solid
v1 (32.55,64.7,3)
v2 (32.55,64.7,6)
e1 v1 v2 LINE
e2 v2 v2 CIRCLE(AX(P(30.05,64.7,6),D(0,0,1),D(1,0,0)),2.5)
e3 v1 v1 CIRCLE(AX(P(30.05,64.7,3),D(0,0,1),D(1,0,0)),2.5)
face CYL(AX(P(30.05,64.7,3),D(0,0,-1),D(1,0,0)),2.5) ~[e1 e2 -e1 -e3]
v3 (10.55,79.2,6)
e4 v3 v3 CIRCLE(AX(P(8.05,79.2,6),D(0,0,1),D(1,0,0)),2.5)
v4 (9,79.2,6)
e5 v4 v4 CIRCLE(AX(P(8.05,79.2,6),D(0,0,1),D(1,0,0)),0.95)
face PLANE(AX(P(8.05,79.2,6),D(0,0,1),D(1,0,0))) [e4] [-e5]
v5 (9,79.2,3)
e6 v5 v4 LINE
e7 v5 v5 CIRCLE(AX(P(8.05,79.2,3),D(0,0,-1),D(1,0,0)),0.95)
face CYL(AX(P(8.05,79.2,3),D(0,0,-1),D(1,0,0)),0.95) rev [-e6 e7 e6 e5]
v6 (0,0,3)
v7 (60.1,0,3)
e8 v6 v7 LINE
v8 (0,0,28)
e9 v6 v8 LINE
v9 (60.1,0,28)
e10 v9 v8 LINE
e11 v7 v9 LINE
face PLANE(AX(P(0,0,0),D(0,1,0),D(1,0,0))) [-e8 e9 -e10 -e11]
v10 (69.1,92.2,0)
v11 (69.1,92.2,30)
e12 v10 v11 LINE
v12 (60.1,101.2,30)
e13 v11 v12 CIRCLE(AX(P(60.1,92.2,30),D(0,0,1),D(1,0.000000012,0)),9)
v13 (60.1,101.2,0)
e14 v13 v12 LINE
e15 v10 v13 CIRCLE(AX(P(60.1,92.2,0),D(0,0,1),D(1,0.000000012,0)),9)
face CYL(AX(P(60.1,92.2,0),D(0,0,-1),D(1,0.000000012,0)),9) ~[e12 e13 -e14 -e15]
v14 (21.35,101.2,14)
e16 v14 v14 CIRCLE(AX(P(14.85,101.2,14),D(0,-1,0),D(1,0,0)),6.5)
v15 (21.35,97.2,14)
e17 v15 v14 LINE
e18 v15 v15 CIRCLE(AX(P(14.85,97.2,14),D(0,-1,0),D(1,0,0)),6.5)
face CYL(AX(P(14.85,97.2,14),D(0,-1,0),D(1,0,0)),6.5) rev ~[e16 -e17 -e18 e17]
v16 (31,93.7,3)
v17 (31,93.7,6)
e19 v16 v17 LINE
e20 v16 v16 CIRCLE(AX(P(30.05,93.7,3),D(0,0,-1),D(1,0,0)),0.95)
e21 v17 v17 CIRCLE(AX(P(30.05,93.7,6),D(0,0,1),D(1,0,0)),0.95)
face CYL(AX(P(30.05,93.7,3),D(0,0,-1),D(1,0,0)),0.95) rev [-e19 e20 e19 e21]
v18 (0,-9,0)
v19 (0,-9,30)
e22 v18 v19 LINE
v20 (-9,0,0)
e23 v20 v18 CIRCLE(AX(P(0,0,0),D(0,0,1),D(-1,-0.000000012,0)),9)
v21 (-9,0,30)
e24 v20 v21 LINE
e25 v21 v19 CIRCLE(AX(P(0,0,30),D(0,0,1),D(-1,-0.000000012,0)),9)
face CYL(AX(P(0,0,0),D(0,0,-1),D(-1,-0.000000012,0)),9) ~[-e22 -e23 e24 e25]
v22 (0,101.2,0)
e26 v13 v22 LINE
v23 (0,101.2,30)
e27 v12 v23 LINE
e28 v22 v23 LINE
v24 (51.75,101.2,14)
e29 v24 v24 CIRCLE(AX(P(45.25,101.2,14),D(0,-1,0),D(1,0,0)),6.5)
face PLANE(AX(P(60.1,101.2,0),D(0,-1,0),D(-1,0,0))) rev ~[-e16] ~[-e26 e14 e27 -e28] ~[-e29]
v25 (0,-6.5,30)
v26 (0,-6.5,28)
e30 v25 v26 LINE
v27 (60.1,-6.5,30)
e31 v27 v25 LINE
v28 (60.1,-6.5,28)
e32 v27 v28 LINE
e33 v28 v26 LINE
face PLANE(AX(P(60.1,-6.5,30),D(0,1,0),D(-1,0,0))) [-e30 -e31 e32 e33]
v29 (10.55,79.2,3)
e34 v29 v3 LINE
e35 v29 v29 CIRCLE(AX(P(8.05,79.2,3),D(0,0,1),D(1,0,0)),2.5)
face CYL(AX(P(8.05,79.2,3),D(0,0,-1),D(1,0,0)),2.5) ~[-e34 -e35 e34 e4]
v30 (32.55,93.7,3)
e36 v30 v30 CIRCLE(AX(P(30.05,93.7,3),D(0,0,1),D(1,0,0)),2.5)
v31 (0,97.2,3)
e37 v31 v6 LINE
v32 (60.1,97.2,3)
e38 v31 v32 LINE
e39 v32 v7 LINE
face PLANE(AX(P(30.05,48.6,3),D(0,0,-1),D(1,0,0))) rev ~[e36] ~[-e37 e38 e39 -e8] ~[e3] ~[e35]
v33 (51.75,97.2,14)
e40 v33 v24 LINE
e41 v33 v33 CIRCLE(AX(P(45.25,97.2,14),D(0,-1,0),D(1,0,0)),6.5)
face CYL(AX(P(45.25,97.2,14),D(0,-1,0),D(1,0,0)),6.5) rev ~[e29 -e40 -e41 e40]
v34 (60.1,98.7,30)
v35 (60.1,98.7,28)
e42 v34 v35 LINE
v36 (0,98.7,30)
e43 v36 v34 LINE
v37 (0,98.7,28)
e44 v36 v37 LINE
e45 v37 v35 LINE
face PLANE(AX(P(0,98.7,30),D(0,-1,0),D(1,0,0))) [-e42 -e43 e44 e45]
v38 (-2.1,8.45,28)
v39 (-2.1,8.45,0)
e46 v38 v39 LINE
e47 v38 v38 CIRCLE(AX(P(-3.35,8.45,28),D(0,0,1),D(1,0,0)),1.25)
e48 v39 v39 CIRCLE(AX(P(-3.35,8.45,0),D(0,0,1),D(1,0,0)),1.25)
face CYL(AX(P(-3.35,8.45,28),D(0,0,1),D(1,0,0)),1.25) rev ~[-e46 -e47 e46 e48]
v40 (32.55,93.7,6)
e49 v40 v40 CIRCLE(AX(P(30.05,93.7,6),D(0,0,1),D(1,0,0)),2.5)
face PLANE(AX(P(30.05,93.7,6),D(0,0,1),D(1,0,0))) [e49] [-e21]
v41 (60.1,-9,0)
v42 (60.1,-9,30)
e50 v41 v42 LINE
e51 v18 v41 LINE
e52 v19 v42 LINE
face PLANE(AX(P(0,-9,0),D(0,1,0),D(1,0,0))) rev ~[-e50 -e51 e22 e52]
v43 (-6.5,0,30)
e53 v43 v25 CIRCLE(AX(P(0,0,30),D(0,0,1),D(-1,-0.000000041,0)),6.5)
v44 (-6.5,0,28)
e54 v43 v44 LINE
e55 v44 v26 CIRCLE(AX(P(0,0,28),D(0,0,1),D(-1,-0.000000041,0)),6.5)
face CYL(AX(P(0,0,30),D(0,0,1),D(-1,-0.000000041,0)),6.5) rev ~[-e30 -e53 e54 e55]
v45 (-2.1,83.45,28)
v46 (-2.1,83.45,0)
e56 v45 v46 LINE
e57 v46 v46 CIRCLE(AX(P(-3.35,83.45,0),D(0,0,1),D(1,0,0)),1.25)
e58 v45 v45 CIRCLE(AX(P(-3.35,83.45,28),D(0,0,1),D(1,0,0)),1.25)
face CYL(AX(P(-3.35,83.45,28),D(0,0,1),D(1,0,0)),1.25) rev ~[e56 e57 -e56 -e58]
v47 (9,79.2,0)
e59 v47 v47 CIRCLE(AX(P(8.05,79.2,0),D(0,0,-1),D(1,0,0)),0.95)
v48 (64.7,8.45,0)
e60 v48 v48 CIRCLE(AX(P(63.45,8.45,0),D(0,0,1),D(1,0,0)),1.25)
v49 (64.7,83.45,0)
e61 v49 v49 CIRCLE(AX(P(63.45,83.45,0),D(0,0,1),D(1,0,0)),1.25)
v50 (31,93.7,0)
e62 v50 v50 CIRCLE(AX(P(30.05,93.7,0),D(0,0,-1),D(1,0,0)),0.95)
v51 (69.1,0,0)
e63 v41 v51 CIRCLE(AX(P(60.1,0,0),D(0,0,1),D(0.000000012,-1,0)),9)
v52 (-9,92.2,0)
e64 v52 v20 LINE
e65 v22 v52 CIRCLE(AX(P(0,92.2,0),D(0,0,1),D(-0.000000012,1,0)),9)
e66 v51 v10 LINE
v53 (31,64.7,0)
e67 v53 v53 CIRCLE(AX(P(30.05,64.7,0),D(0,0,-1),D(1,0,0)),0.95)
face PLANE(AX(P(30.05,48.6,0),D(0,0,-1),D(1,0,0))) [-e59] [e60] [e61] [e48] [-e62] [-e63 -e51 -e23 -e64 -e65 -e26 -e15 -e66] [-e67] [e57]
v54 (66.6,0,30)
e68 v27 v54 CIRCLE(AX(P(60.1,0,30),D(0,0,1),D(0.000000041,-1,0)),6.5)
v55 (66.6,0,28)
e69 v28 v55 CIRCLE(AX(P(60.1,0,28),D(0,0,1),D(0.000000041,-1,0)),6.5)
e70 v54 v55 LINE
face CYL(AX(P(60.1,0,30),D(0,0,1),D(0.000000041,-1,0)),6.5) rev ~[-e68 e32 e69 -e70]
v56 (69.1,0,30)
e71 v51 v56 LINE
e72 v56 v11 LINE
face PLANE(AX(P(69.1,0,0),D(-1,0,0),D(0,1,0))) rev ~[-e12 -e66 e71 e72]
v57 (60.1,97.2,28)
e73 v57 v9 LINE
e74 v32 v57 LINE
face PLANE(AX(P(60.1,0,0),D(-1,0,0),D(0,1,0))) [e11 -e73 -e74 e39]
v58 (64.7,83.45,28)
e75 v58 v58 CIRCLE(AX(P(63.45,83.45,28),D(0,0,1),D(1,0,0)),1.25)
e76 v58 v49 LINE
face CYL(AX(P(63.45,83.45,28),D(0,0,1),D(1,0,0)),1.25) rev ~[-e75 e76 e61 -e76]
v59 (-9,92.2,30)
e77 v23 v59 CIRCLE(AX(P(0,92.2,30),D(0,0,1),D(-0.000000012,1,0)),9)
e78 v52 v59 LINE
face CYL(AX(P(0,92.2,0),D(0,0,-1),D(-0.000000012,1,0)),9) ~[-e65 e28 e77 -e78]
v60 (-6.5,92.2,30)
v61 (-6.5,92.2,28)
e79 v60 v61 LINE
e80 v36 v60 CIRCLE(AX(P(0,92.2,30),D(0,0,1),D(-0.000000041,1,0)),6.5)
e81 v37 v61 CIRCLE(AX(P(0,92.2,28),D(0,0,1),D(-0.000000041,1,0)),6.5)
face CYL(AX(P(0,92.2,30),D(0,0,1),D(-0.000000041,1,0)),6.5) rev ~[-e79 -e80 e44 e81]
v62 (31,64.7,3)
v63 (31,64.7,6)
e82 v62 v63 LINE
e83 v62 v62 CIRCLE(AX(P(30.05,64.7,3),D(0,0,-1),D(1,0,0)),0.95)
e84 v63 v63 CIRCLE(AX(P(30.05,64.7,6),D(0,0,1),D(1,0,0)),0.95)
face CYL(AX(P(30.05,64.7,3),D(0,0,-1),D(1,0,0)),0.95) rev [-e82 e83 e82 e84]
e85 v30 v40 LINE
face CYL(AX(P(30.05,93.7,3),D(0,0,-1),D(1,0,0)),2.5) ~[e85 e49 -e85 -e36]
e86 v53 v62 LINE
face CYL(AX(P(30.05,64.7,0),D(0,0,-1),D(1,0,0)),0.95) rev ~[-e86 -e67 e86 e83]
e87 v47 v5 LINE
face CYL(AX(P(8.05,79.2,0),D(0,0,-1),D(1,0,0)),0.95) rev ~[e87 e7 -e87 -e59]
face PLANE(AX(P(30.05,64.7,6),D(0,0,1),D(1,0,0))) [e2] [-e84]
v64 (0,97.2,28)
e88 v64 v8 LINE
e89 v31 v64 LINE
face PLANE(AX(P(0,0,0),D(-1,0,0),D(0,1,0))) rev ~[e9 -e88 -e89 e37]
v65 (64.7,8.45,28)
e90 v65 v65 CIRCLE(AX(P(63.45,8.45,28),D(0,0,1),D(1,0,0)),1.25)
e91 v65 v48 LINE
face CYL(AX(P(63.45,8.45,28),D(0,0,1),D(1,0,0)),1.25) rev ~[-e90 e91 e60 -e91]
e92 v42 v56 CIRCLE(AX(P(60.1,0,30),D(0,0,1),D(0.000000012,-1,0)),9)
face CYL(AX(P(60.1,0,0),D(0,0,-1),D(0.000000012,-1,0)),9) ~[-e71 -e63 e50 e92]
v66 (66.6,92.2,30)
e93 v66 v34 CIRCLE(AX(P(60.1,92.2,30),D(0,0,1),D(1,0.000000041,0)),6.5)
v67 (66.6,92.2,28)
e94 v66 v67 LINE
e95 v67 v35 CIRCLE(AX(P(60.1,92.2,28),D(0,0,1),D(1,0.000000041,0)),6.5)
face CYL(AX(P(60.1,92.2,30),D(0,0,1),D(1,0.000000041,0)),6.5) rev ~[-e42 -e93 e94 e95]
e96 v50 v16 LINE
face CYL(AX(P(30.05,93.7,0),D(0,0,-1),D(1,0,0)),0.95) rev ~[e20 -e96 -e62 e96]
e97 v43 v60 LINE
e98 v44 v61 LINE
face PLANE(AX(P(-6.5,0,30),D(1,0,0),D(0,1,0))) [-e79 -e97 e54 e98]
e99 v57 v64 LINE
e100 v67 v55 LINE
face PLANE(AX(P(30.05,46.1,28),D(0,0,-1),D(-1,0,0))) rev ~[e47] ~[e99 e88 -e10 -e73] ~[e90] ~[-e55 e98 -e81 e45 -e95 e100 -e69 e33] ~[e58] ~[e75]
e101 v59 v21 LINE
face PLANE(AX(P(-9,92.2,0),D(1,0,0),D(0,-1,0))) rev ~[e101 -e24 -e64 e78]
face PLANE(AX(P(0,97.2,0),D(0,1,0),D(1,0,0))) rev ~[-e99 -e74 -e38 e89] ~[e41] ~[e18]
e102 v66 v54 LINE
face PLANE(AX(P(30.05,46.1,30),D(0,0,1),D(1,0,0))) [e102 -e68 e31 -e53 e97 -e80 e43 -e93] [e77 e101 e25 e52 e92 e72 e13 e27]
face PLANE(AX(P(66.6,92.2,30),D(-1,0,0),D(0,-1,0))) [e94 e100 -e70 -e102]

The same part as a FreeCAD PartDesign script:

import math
import FreeCAD as App
import Part
import Sketcher
from FreeCAD import Vector
Q = App.Units.Quantity

doc = App.newDocument("Part")
body = doc.addObject("PartDesign::Body", "Body")

# Sketch on XY plane
sketch1 = body.newObject("Sketcher::SketchObject", "Sketch")
sketch1.AttachmentSupport = (doc.getObject("XY_Plane"), [""])
sketch1.MapMode = "FlatFace"
sketch1.addGeometry([
    Part.LineSegment(Vector(0, -9, 0), Vector(60.1, -9, 0)),  # 0
    Part.ArcOfCircle(Part.Circle(Vector(60.1, 0, 0), Vector(0, 0, 1), 9), math.radians(-89.999999), math.radians(-0.000001)),  # 1
    Part.LineSegment(Vector(69.1, 0, 0), Vector(69.1, 92.2, 0)),  # 2
    Part.ArcOfCircle(Part.Circle(Vector(60.1, 92.2, 0), Vector(0, 0, 1), 9), math.radians(0.000001), math.radians(89.999999)),  # 3
    Part.LineSegment(Vector(60.1, 101.2, 0), Vector(0, 101.2, 0)),  # 4
    Part.ArcOfCircle(Part.Circle(Vector(0, 92.2, 0), Vector(0, 0, 1), 9), math.radians(90.000001), math.radians(179.999999)),  # 5
    Part.LineSegment(Vector(-9, 92.2, 0), Vector(-9, 0, 0)),  # 6
    Part.ArcOfCircle(Part.Circle(Vector(0, 0, 0), Vector(0, 0, 1), 9), math.radians(-179.999999), math.radians(-90.000001)),  # 7
    Part.LineSegment(Vector(60.1, 0, 0), Vector(0, 0, 0)),  # 8
    Part.LineSegment(Vector(0, 0, 0), Vector(0, 97.2, 0)),  # 9
    Part.LineSegment(Vector(0, 97.2, 0), Vector(60.1, 97.2, 0)),  # 10
    Part.LineSegment(Vector(60.1, 97.2, 0), Vector(60.1, 0, 0)),  # 11
], False)
sketch1.addConstraint([
    Sketcher.Constraint("Tangent", 0, 2, 1, 1),
    Sketcher.Constraint("Tangent", 1, 2, 2, 1),
    Sketcher.Constraint("Tangent", 2, 2, 3, 1),
    Sketcher.Constraint("Tangent", 3, 2, 4, 1),
    Sketcher.Constraint("Tangent", 4, 2, 5, 1),
    Sketcher.Constraint("Tangent", 5, 2, 6, 1),
    Sketcher.Constraint("Tangent", 6, 2, 7, 1),
    Sketcher.Constraint("Tangent", 7, 2, 0, 1),
    Sketcher.Constraint("Coincident", 8, 2, 9, 1),
    Sketcher.Constraint("Coincident", 9, 2, 10, 1),
    Sketcher.Constraint("Coincident", 10, 2, 11, 1),
    Sketcher.Constraint("Coincident", 11, 2, 8, 1),
    Sketcher.Constraint("Horizontal", 0),
    Sketcher.Constraint("Vertical", 2),
    Sketcher.Constraint("Horizontal", 4),
    Sketcher.Constraint("Vertical", 6),
    Sketcher.Constraint("Horizontal", 8),
    Sketcher.Constraint("Vertical", 9),
    Sketcher.Constraint("Horizontal", 10),
    Sketcher.Constraint("Vertical", 11),
    Sketcher.Constraint("Coincident", 7, 3, -1, 1),
    Sketcher.Constraint("Coincident", 8, 2, -1, 1),
    Sketcher.Constraint("Coincident", 11, 2, 1, 3),
    Sketcher.Constraint("Equal", 1, 3),
    Sketcher.Constraint("Equal", 3, 5),
    Sketcher.Constraint("Radius", 1, Q("9 mm")),
    Sketcher.Constraint("DistanceX", 0, 1, 0, 2, Q("60.1 mm")),
    Sketcher.Constraint("DistanceY", 2, 1, 2, 2, Q("92.2 mm")),
    Sketcher.Constraint("DistanceY", 9, 1, 9, 2, Q("97.2 mm")),
])
pad1 = body.newObject("PartDesign::Pad", "Pad")
pad1.Profile = sketch1
pad1.Length = 30

# Sketch on XY plane
sketch2 = body.newObject("Sketcher::SketchObject", "Sketch001")
sketch2.AttachmentSupport = (doc.getObject("XY_Plane"), [""])
sketch2.MapMode = "FlatFace"
sketch2.AttachmentOffset = App.Placement(Vector(0, 0, 30), App.Rotation())
sketch2.addGeometry([
    Part.LineSegment(Vector(60.1, 98.7, 0), Vector(0, 98.7, 0)),  # 0
    Part.ArcOfCircle(Part.Circle(Vector(0, 92.2, 0), Vector(0, 0, 1), 6.5), math.radians(90.000002), math.radians(179.999998)),  # 1
    Part.LineSegment(Vector(-6.5, 92.2, 0), Vector(-6.5, 0, 0)),  # 2
    Part.ArcOfCircle(Part.Circle(Vector(0, 0, 0), Vector(0, 0, 1), 6.5), math.radians(-179.999998), math.radians(-90.000002)),  # 3
    Part.LineSegment(Vector(0, -6.5, 0), Vector(60.1, -6.5, 0)),  # 4
    Part.ArcOfCircle(Part.Circle(Vector(60.1, 0, 0), Vector(0, 0, 1), 6.5), math.radians(-89.999998), math.radians(-0.000002)),  # 5
    Part.LineSegment(Vector(66.6, 0, 0), Vector(66.6, 92.2, 0)),  # 6
    Part.ArcOfCircle(Part.Circle(Vector(60.1, 92.2, 0), Vector(0, 0, 1), 6.5), math.radians(0.000002), math.radians(89.999998)),  # 7
], False)
sketch2.addConstraint([
    Sketcher.Constraint("Tangent", 0, 2, 1, 1),
    Sketcher.Constraint("Tangent", 1, 2, 2, 1),
    Sketcher.Constraint("Tangent", 2, 2, 3, 1),
    Sketcher.Constraint("Tangent", 3, 2, 4, 1),
    Sketcher.Constraint("Tangent", 4, 2, 5, 1),
    Sketcher.Constraint("Tangent", 5, 2, 6, 1),
    Sketcher.Constraint("Tangent", 6, 2, 7, 1),
    Sketcher.Constraint("Tangent", 7, 2, 0, 1),
    Sketcher.Constraint("Horizontal", 0),
    Sketcher.Constraint("Vertical", 2),
    Sketcher.Constraint("Horizontal", 4),
    Sketcher.Constraint("Vertical", 6),
    Sketcher.Constraint("Coincident", 3, 3, -1, 1),
    Sketcher.Constraint("Equal", 1, 3),
    Sketcher.Constraint("Equal", 3, 5),
    Sketcher.Constraint("Equal", 5, 7),
    Sketcher.Constraint("Radius", 1, Q("6.5 mm")),
    Sketcher.Constraint("DistanceX", 0, 2, 0, 1, Q("60.1 mm")),
    Sketcher.Constraint("DistanceY", 2, 2, 2, 1, Q("92.2 mm")),
])
pocket1 = body.newObject("PartDesign::Pocket", "Pocket")
pocket1.Profile = sketch2
pocket1.Length = 2

# Sketch on XY plane
sketch3 = body.newObject("Sketcher::SketchObject", "Sketch002")
sketch3.AttachmentSupport = (doc.getObject("XY_Plane"), [""])
sketch3.MapMode = "FlatFace"
sketch3.addGeometry([
    Part.LineSegment(Vector(0, 0, 0), Vector(0, 97.2, 0)),  # 0
    Part.LineSegment(Vector(0, 97.2, 0), Vector(60.1, 97.2, 0)),  # 1
    Part.LineSegment(Vector(60.1, 97.2, 0), Vector(60.1, 0, 0)),  # 2
    Part.LineSegment(Vector(60.1, 0, 0), Vector(0, 0, 0)),  # 3
    Part.Circle(Vector(30.05, 93.7, 0), Vector(0, 0, 1), 0.95),  # 4
    Part.Circle(Vector(8.05, 79.2, 0), Vector(0, 0, 1), 0.95),  # 5
    Part.Circle(Vector(30.05, 64.7, 0), Vector(0, 0, 1), 0.95),  # 6
], False)
sketch3.addConstraint([
    Sketcher.Constraint("Coincident", 0, 2, 1, 1),
    Sketcher.Constraint("Coincident", 1, 2, 2, 1),
    Sketcher.Constraint("Coincident", 2, 2, 3, 1),
    Sketcher.Constraint("Coincident", 3, 2, 0, 1),
    Sketcher.Constraint("Vertical", 0),
    Sketcher.Constraint("Horizontal", 1),
    Sketcher.Constraint("Vertical", 2),
    Sketcher.Constraint("Horizontal", 3),
    Sketcher.Constraint("Coincident", 3, 2, -1, 1),
    Sketcher.Constraint("Equal", 4, 5),
    Sketcher.Constraint("Equal", 5, 6),
    Sketcher.Constraint("Vertical", 4, 3, 6, 3),
    Sketcher.Constraint("Diameter", 4, Q("1.9 mm")),
    Sketcher.Constraint("DistanceX", 1, 1, 1, 2, Q("60.1 mm")),
    Sketcher.Constraint("DistanceY", 0, 1, 0, 2, Q("97.2 mm")),
    Sketcher.Constraint("DistanceX", 5, 3, 4, 3, Q("22 mm")),
    Sketcher.Constraint("DistanceY", 6, 3, 4, 3, Q("29 mm")),
    Sketcher.Constraint("DistanceY", 5, 3, 0, 2, Q("18 mm")),
    Sketcher.Constraint("DistanceY", -1, 1, 4, 3, Q("93.7 mm")),
    Sketcher.Constraint("DistanceX", -1, 1, 4, 3, Q("30.05 mm")),
])
pad2 = body.newObject("PartDesign::Pad", "Pad001")
pad2.Profile = sketch3
pad2.Length = 3

# Sketch on XY plane
sketch4 = body.newObject("Sketcher::SketchObject", "Sketch003")
sketch4.AttachmentSupport = (doc.getObject("XY_Plane"), [""])
sketch4.MapMode = "FlatFace"
sketch4.AttachmentOffset = App.Placement(Vector(0, 0, 3), App.Rotation())
sketch4.addGeometry([
    Part.Circle(Vector(8.05, 79.2, 0), Vector(0, 0, 1), 2.5),  # 0
    Part.Circle(Vector(8.05, 79.2, 0), Vector(0, 0, 1), 0.95),  # 1
    Part.Circle(Vector(30.05, 93.7, 0), Vector(0, 0, 1), 2.5),  # 2
    Part.Circle(Vector(30.05, 93.7, 0), Vector(0, 0, 1), 0.95),  # 3
    Part.Circle(Vector(30.05, 64.7, 0), Vector(0, 0, 1), 2.5),  # 4
    Part.Circle(Vector(30.05, 64.7, 0), Vector(0, 0, 1), 0.95),  # 5
], False)
sketch4.addConstraint([
    Sketcher.Constraint("Coincident", 1, 3, 0, 3),
    Sketcher.Constraint("Coincident", 3, 3, 2, 3),
    Sketcher.Constraint("Coincident", 5, 3, 4, 3),
    Sketcher.Constraint("Equal", 0, 2),
    Sketcher.Constraint("Equal", 1, 3),
    Sketcher.Constraint("Equal", 2, 4),
    Sketcher.Constraint("Equal", 3, 5),
    Sketcher.Constraint("Vertical", 3, 3, 4, 3),
    Sketcher.Constraint("Diameter", 0, Q("5 mm")),
    Sketcher.Constraint("Diameter", 1, Q("1.9 mm")),
    Sketcher.Constraint("DistanceX", 0, 3, 2, 3, Q("22 mm")),
    Sketcher.Constraint("DistanceY", 4, 3, 2, 3, Q("29 mm")),
    Sketcher.Constraint("DistanceY", -1, 1, 0, 3, Q("79.2 mm")),
    Sketcher.Constraint("DistanceY", -1, 1, 2, 3, Q("93.7 mm")),
    Sketcher.Constraint("DistanceX", -1, 1, 0, 3, Q("8.05 mm")),
])
pad3 = body.newObject("PartDesign::Pad", "Pad002")
pad3.Profile = sketch4
pad3.Length = 3

# Sketch on XZ plane
sketch5 = body.newObject("Sketcher::SketchObject", "Sketch004")
sketch5.AttachmentSupport = (doc.getObject("XZ_Plane"), [""])
sketch5.MapMode = "FlatFace"
sketch5.AttachmentOffset = App.Placement(Vector(0, 0, -97.2), App.Rotation())
sketch5.addGeometry([
    Part.Circle(Vector(14.85, 14, 0), Vector(0, 0, 1), 6.5),
    Part.Circle(Vector(45.25, 14, 0), Vector(0, 0, 1), 6.5),
], False)
sketch5.addConstraint([
    Sketcher.Constraint("Equal", 0, 1),
    Sketcher.Constraint("Horizontal", 0, 3, 1, 3),
    Sketcher.Constraint("Diameter", 0, Q("13 mm")),
    Sketcher.Constraint("DistanceY", -1, 1, 0, 3, Q("14 mm")),
    Sketcher.Constraint("DistanceX", 0, 3, 1, 3, Q("30.4 mm")),
    Sketcher.Constraint("DistanceX", -1, 1, 0, 3, Q("14.85 mm")),
])
pocket2 = body.newObject("PartDesign::Pocket", "Pocket001")
pocket2.Profile = sketch5
pocket2.Type = "ThroughAll"

# Sketch on XY plane
sketch6 = body.newObject("Sketcher::SketchObject", "Sketch005")
sketch6.AttachmentSupport = (doc.getObject("XY_Plane"), [""])
sketch6.MapMode = "FlatFace"
sketch6.AttachmentOffset = App.Placement(Vector(0, 0, 28), App.Rotation())
sketch6.addGeometry([
    Part.Circle(Vector(-3.35, 83.45, 0), Vector(0, 0, 1), 1.25),
    Part.Circle(Vector(-3.35, 8.45, 0), Vector(0, 0, 1), 1.25),
    Part.Circle(Vector(63.45, 83.45, 0), Vector(0, 0, 1), 1.25),
    Part.Circle(Vector(63.45, 8.45, 0), Vector(0, 0, 1), 1.25),
], False)
sketch6.addConstraint([
    Sketcher.Constraint("Equal", 0, 1),
    Sketcher.Constraint("Equal", 1, 2),
    Sketcher.Constraint("Equal", 2, 3),
    Sketcher.Constraint("Horizontal", 0, 3, 2, 3),
    Sketcher.Constraint("Horizontal", 1, 3, 3, 3),
    Sketcher.Constraint("Vertical", 0, 3, 1, 3),
    Sketcher.Constraint("Vertical", 2, 3, 3, 3),
    Sketcher.Constraint("Diameter", 0, Q("2.5 mm")),
    Sketcher.Constraint("DistanceY", 1, 3, 0, 3, Q("75 mm")),
    Sketcher.Constraint("DistanceX", 0, 3, 2, 3, Q("66.8 mm")),
    Sketcher.Constraint("DistanceX", 0, 3, -1, 1, Q("3.35 mm")),
    Sketcher.Constraint("DistanceY", -1, 1, 0, 3, Q("83.45 mm")),
])
pocket3 = body.newObject("PartDesign::Pocket", "Pocket002")
pocket3.Profile = sketch6
pocket3.Type = "ThroughAll"

doc.recompute()
